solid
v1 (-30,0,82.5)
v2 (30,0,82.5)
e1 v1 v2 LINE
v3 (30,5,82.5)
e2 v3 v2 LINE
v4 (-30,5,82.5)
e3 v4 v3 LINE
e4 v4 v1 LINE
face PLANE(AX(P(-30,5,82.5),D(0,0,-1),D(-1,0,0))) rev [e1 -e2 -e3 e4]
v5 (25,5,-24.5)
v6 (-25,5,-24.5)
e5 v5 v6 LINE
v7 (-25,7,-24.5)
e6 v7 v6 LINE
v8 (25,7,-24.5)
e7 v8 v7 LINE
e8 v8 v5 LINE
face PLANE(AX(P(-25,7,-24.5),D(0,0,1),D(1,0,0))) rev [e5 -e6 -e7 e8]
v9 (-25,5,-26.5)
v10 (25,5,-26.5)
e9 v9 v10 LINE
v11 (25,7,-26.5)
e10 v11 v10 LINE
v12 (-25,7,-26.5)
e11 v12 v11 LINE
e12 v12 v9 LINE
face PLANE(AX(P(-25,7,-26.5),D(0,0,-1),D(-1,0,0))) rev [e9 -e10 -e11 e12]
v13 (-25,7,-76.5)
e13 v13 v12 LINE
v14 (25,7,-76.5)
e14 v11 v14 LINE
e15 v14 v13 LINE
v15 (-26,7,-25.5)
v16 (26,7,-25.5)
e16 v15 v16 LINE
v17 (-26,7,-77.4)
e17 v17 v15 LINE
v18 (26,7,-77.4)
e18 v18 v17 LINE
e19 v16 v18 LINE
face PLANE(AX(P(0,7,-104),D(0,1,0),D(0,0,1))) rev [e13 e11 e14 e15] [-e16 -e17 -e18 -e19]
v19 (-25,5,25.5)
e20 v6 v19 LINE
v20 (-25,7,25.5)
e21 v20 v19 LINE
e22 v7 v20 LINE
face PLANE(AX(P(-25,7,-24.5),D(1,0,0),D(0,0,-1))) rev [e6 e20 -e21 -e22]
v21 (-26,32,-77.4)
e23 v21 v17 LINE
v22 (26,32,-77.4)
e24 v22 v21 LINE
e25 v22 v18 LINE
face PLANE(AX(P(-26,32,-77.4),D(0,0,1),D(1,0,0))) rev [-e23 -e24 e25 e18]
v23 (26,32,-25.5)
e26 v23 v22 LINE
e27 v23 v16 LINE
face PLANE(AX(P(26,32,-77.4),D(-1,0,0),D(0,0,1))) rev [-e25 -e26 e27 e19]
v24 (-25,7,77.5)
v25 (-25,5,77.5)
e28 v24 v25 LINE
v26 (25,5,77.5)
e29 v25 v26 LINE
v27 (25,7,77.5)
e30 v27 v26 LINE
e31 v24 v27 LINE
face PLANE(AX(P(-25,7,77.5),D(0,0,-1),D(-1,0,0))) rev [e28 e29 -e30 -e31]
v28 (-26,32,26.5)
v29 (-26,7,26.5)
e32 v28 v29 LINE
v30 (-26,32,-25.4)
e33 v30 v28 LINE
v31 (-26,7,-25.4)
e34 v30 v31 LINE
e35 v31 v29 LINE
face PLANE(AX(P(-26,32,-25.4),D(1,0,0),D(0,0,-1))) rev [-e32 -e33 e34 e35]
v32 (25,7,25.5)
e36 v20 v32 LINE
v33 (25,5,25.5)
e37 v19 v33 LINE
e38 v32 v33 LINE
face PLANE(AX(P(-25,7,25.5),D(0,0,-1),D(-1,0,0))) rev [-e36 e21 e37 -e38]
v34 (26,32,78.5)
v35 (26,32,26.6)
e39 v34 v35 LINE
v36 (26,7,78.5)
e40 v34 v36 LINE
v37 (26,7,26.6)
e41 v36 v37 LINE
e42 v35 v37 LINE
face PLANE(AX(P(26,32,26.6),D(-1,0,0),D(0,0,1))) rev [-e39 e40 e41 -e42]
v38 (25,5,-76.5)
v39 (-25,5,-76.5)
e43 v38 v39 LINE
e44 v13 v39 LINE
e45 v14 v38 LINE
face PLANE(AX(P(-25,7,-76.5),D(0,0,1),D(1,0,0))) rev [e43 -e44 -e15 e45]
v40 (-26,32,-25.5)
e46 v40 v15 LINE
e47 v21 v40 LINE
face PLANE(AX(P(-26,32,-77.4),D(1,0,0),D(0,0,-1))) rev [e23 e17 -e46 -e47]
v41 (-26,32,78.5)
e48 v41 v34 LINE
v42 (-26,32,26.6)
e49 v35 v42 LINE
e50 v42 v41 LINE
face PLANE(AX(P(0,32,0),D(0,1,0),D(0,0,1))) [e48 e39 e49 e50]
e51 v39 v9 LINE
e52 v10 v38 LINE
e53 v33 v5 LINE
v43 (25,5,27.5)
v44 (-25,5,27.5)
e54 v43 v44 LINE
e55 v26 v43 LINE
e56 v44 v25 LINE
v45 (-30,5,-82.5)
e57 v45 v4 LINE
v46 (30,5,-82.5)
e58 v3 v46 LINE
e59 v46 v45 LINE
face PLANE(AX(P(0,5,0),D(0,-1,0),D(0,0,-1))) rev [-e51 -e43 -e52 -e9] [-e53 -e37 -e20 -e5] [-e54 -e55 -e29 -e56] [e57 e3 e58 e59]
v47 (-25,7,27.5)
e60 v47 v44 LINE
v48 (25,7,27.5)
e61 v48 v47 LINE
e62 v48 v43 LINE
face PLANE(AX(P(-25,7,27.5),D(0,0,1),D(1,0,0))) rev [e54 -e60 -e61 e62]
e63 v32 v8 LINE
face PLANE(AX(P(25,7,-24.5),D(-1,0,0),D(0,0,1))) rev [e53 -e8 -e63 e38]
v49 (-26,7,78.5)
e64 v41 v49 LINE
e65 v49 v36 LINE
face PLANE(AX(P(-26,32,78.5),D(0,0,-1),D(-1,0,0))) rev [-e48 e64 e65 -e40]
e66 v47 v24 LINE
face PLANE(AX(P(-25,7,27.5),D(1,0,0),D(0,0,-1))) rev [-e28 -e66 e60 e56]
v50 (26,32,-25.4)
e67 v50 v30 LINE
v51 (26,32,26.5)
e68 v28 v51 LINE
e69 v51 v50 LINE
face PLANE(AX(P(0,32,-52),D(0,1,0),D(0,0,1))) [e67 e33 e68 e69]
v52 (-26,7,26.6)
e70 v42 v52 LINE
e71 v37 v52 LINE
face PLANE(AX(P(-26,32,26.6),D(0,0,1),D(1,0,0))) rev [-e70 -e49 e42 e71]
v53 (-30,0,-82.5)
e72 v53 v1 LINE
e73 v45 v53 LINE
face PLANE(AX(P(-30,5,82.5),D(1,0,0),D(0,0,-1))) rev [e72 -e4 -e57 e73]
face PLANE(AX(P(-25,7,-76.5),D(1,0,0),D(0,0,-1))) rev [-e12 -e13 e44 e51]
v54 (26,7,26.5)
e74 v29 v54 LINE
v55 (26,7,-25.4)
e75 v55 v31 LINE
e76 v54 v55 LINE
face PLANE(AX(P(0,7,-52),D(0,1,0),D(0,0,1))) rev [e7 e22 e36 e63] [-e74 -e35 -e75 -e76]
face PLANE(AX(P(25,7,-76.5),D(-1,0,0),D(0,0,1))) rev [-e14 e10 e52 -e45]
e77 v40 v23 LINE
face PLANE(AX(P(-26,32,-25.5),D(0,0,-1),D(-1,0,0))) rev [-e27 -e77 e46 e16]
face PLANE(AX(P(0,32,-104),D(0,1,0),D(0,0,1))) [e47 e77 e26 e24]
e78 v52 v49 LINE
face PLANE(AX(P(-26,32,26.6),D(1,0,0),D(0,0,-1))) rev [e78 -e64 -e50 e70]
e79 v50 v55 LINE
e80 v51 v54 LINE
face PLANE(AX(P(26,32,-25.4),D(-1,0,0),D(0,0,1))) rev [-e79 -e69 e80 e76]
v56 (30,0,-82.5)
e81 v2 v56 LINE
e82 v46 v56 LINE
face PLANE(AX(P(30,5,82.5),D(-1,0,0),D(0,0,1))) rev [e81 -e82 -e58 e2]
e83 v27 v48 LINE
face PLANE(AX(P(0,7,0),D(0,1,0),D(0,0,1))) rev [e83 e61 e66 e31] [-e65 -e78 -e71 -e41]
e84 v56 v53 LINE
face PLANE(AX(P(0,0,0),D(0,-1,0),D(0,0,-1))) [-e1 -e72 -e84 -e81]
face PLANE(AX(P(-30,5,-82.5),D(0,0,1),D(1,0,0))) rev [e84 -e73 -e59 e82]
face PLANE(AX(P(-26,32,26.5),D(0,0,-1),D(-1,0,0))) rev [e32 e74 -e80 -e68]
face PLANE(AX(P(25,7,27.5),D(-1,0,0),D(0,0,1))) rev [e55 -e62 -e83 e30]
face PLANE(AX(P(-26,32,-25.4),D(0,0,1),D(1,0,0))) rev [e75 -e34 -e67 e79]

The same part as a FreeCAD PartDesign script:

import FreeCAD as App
import Part
import Sketcher

V = App.Vector

doc = App.newDocument("Part")
params = doc.addObject("Spreadsheet::Sheet", "Params")
for row, (alias, value) in enumerate([
    ("sketch1_width", "60 mm"),
    ("sketch1_height", "165 mm"),
    ("pad1_length", "5 mm"),
    ("sketch2_width", "50 mm"),
    ("pad2_length", "2 mm"),
    ("linearpattern_pitch", "52 mm"),
    ("sketch3_width", "52 mm"),
    ("sketch3_height", "51.9 mm"),
    ("pad3_length", "25 mm"),
    ("linearpattern2_pitch", "52 mm"),
], start=1):
    params.set(f"A{row}", alias)
    params.set(f"B{row}", "=" + value)
    params.setAlias(f"B{row}", alias)

body = doc.addObject("PartDesign::Body", "Body")

# Sketch on XZ plane
sketch1 = body.newObject("Sketcher::SketchObject", "Sketch")
sketch1.AttachmentSupport = (doc.getObject("XZ_Plane"), [""])
sketch1.MapMode = "FlatFace"
sketch1.addGeometry([
    Part.LineSegment(V(-30, -82, 0), V(-30, 82, 0)),
    Part.LineSegment(V(-30, 82, 0), V(30, 82, 0)),
    Part.LineSegment(V(30, 82, 0), V(30, -82, 0)),
    Part.LineSegment(V(30, -82, 0), V(-30, -82, 0)),
], False)
sketch1.addConstraint([
    Sketcher.Constraint("Coincident", 0, 2, 1, 1),
    Sketcher.Constraint("Coincident", 1, 2, 2, 1),
    Sketcher.Constraint("Coincident", 2, 2, 3, 1),
    Sketcher.Constraint("Coincident", 3, 2, 0, 1),
    Sketcher.Constraint("Vertical", 0),
    Sketcher.Constraint("Horizontal", 1),
    Sketcher.Constraint("Vertical", 2),
    Sketcher.Constraint("Horizontal", 3),
    Sketcher.Constraint("Symmetric", 0, 2, 2, 2, -1, 1),
    Sketcher.Constraint("DistanceX", 1, 1, 1, 2, 60.0),
    Sketcher.Constraint("DistanceY", 0, 1, 0, 2, 165.0),
])
sketch1.setExpression("Constraints[9]", "Params.sketch1_width")
sketch1.setExpression("Constraints[10]", "Params.sketch1_height")
pad1 = body.newObject("PartDesign::Pad", "Pad")
pad1.Profile = sketch1
pad1.setExpression("Length", "Params.pad1_length")
pad1.Reversed = True

# Sketch on XZ plane
sketch2 = body.newObject("Sketcher::SketchObject", "Sketch001")
sketch2.AttachmentSupport = (doc.getObject("XZ_Plane"), [""])
sketch2.MapMode = "FlatFace"
sketch2.AttachmentOffset = App.Placement(V(0, 0, -5), App.Rotation())
sketch2.addGeometry([
    Part.LineSegment(V(-25, 28, 0), V(-25, 78, 0)),
    Part.LineSegment(V(-25, 78, 0), V(25, 78, 0)),
    Part.LineSegment(V(25, 78, 0), V(25, 28, 0)),
    Part.LineSegment(V(25, 28, 0), V(-25, 28, 0)),
], False)
sketch2.addConstraint([
    Sketcher.Constraint("Coincident", 0, 2, 1, 1),
    Sketcher.Constraint("Coincident", 1, 2, 2, 1),
    Sketcher.Constraint("Coincident", 2, 2, 3, 1),
    Sketcher.Constraint("Coincident", 3, 2, 0, 1),
    Sketcher.Constraint("Vertical", 0),
    Sketcher.Constraint("Horizontal", 1),
    Sketcher.Constraint("Vertical", 2),
    Sketcher.Constraint("Horizontal", 3),
    Sketcher.Constraint("Equal", 3, 0),
    Sketcher.Constraint("DistanceX", 1, 1, 1, 2, 50.0),
    Sketcher.Constraint("DistanceX", 0, 2, -1, 1, 25.0),
    Sketcher.Constraint("DistanceY", -1, 1, 0, 2, 77.5),
])
sketch2.setExpression("Constraints[9]", "Params.sketch2_width")
pad2 = body.newObject("PartDesign::Pad", "Pad001")
pad2.Profile = sketch2
pad2.setExpression("Length", "Params.pad2_length")
pad2.Reversed = True
doc.recompute()

linearpattern = body.newObject("PartDesign::LinearPattern", "LinearPattern")
linearpattern.Originals = [pad2]
linearpattern.Direction = (doc.getObject("Z_Axis"), [""])
linearpattern.Mode = "offset"
linearpattern.setExpression("Offset", "Params.linearpattern_pitch")
linearpattern.Occurrences = 3
linearpattern.Reversed = True
body.Tip = linearpattern

# Sketch on XZ plane
sketch3 = body.newObject("Sketcher::SketchObject", "Sketch002")
sketch3.AttachmentSupport = (doc.getObject("XZ_Plane"), [""])
sketch3.MapMode = "FlatFace"
sketch3.AttachmentOffset = App.Placement(V(0, 0, -7), App.Rotation())
sketch3.addGeometry([
    Part.LineSegment(V(-26, 27, 0), V(-26, 78, 0)),
    Part.LineSegment(V(-26, 78, 0), V(26, 78, 0)),
    Part.LineSegment(V(26, 78, 0), V(26, 27, 0)),
    Part.LineSegment(V(26, 27, 0), V(-26, 27, 0)),
], False)
sketch3.addConstraint([
    Sketcher.Constraint("Coincident", 0, 2, 1, 1),
    Sketcher.Constraint("Coincident", 1, 2, 2, 1),
    Sketcher.Constraint("Coincident", 2, 2, 3, 1),
    Sketcher.Constraint("Coincident", 3, 2, 0, 1),
    Sketcher.Constraint("Vertical", 0),
    Sketcher.Constraint("Horizontal", 1),
    Sketcher.Constraint("Vertical", 2),
    Sketcher.Constraint("Horizontal", 3),
    Sketcher.Constraint("DistanceX", 1, 1, 1, 2, 52.0),
    Sketcher.Constraint("DistanceY", 0, 1, 0, 2, 51.9),
    Sketcher.Constraint("DistanceX", 0, 2, -1, 1, 26.0),
    Sketcher.Constraint("DistanceY", -1, 1, 0, 2, 78.5),
])
sketch3.setExpression("Constraints[8]", "Params.sketch3_width")
sketch3.setExpression("Constraints[9]", "Params.sketch3_height")
pad3 = body.newObject("PartDesign::Pad", "Pad002")
pad3.Profile = sketch3
pad3.setExpression("Length", "Params.pad3_length")
pad3.Reversed = True
doc.recompute()

linearpattern2 = body.newObject("PartDesign::LinearPattern", "LinearPattern001")
linearpattern2.Originals = [pad3]
linearpattern2.Direction = (doc.getObject("Z_Axis"), [""])
linearpattern2.Mode = "offset"
linearpattern2.setExpression("Offset", "Params.linearpattern2_pitch")
linearpattern2.Occurrences = 3
linearpattern2.Reversed = True
body.Tip = linearpattern2

doc.recompute()
